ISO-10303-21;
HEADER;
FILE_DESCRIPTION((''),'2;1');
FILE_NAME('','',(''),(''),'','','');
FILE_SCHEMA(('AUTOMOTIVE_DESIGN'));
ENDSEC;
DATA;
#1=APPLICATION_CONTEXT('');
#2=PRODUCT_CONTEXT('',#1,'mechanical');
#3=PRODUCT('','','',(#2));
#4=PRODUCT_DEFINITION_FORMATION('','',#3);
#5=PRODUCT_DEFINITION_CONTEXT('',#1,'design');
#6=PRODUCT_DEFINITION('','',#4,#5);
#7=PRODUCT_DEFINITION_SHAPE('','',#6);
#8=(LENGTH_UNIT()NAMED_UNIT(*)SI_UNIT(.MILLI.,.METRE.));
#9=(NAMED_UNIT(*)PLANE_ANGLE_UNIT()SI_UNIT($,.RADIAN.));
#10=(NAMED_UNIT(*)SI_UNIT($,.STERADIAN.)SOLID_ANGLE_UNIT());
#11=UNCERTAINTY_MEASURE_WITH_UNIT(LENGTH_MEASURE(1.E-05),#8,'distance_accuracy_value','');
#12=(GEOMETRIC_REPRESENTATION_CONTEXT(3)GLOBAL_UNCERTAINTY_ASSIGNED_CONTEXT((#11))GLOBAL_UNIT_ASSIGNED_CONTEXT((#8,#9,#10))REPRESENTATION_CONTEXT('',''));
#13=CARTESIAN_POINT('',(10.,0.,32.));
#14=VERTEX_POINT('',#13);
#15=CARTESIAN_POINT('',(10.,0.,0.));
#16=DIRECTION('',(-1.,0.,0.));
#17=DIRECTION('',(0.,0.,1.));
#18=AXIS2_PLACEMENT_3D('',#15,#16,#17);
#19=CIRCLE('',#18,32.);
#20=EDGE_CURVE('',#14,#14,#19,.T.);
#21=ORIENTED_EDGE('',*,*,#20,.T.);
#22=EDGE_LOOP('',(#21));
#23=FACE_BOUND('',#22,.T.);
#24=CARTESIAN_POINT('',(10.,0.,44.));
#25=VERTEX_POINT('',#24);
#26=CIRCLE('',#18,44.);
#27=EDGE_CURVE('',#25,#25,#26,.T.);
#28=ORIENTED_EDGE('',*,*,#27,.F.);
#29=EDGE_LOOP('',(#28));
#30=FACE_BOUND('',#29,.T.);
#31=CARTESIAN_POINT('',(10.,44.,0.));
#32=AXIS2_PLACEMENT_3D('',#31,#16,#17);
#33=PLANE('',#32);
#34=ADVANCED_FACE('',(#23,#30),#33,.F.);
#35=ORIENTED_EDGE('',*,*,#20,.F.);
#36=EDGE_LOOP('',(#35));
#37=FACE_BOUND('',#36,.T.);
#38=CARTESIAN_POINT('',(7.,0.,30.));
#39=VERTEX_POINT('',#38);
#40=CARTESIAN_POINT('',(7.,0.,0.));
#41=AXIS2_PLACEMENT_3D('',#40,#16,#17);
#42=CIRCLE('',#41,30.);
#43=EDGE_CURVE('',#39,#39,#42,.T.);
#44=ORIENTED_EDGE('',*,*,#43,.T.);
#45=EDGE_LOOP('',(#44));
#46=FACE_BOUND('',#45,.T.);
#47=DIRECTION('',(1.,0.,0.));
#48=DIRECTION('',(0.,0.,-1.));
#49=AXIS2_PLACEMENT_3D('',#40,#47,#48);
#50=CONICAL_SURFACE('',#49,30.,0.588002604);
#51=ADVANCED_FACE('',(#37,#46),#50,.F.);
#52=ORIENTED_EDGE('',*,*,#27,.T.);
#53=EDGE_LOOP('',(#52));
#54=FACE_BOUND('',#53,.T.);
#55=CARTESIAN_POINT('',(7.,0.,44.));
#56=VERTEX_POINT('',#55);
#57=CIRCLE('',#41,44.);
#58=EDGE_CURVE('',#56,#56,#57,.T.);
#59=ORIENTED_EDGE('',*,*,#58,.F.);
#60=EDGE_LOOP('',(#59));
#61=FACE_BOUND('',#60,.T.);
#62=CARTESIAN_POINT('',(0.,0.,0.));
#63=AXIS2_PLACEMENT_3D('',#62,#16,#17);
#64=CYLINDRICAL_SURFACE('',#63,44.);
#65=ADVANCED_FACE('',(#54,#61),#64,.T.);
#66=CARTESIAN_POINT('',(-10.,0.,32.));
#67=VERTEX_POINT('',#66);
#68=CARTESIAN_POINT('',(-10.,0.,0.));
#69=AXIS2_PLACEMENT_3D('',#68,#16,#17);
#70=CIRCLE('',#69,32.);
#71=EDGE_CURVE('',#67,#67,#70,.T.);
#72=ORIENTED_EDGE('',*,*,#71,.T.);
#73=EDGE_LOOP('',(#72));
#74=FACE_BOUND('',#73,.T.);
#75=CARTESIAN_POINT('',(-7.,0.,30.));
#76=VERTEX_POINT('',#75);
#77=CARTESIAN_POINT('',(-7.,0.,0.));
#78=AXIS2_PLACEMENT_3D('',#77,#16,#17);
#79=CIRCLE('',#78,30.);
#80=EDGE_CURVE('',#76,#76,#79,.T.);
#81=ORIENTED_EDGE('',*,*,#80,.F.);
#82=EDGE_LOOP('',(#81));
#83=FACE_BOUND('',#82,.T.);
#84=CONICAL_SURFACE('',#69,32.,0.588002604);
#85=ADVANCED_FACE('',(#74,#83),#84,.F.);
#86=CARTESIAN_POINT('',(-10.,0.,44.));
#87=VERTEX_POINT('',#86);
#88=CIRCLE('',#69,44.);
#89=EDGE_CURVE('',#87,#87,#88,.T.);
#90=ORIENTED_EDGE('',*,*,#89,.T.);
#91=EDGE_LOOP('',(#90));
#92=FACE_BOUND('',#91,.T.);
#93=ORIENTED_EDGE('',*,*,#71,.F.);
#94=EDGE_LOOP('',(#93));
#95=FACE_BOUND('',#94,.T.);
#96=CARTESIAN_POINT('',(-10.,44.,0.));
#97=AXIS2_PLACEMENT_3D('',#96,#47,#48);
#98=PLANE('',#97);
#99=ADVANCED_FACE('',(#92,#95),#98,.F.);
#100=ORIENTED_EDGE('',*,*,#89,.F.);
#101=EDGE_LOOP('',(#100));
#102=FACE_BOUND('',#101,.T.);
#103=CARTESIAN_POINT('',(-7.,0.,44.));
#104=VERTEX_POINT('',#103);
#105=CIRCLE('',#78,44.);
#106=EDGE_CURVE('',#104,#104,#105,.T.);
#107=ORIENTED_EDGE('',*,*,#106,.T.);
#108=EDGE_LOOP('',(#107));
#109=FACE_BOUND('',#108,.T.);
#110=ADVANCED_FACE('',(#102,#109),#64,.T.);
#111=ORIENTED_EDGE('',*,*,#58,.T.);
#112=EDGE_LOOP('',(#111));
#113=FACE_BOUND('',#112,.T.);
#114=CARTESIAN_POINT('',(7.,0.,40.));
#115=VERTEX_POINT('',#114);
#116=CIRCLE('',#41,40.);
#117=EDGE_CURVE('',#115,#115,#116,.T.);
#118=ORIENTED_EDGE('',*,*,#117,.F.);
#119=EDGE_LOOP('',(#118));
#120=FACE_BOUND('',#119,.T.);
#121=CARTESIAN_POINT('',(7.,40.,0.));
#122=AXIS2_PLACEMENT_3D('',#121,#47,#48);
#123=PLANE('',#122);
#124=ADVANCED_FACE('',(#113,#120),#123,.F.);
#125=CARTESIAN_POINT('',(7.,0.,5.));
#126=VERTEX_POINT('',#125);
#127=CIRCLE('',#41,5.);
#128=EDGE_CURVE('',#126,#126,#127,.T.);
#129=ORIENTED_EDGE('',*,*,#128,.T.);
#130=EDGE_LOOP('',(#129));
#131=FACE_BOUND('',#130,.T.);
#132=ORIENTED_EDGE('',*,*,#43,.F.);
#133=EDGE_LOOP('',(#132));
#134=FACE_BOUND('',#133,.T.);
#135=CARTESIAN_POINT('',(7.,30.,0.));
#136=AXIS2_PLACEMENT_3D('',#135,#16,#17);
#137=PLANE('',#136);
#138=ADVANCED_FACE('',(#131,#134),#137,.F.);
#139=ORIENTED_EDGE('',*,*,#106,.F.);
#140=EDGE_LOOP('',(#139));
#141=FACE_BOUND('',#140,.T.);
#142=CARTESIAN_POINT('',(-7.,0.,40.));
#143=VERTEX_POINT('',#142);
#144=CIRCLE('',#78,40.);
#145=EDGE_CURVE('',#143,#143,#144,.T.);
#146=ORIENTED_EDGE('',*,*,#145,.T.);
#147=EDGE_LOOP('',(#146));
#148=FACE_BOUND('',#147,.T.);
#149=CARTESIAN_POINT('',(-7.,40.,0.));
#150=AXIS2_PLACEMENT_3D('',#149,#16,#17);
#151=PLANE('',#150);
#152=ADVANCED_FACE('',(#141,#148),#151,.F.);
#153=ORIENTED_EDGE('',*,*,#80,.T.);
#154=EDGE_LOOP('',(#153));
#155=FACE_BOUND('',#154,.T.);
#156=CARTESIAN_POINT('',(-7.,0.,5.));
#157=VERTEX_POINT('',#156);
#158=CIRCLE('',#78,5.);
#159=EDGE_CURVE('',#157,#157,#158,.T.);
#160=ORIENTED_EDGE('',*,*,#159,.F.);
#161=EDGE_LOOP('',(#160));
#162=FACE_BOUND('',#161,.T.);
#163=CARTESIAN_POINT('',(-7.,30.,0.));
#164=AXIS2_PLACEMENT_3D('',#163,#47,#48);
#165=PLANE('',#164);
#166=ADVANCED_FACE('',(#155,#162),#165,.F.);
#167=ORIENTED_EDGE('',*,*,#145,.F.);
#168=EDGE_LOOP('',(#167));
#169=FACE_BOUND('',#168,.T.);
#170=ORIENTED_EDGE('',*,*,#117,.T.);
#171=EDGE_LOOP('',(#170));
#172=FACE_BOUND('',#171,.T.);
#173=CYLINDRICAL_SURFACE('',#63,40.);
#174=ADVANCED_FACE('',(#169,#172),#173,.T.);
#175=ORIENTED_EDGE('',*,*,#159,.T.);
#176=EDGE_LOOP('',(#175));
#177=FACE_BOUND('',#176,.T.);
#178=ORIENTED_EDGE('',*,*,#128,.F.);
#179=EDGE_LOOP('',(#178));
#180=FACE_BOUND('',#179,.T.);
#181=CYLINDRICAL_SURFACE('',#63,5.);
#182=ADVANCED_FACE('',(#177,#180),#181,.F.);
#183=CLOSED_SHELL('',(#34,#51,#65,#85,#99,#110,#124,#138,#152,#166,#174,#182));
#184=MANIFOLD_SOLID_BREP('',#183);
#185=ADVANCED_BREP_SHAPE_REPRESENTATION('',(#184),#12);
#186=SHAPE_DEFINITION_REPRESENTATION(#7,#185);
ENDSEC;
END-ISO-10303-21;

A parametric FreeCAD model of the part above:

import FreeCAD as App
import Part
import Sketcher
Q = App.Units.Quantity


def add_polygon(sketch, points):
    """Adds a closed chain of lines whose ends are joined by coincident constraints."""
    first, n = sketch.GeometryCount, len(points)
    for a, b in zip(points, points[1:] + points[:1]):
        sketch.addGeometry(Part.LineSegment(App.Vector(*a, 0), App.Vector(*b, 0)), False)
    for i in range(n):
        sketch.addConstraint(Sketcher.Constraint("Coincident", first + i, 2, first + (i + 1) % n, 1))

doc = App.newDocument("Part")
params = doc.addObject("Spreadsheet::Sheet", "Params")
for row, (alias, value) in enumerate([
    ("sketch1_width", "14 mm"),
    ("sketch1_width2", "3 mm"),
    ("sketch1_height", "4 mm"),
    ("sketch1_height2", "12 mm"),
    ("sketch1_height3", "25 mm"),
    ("revolution_angle", "360 deg"),
], start=1):
    params.set(f"A{row}", alias)
    params.set(f"B{row}", "=" + value)
    params.setAlias(f"B{row}", alias)

body = doc.addObject("PartDesign::Body", "Body")

sketch1 = body.newObject("Sketcher::SketchObject", "Sketch")
sketch1.AttachmentSupport = (doc.getObject("XY_Plane"), [""])
sketch1.MapMode = "FlatFace"
add_polygon(sketch1, [(7, 40), (-7, 40), (-7, 44), (-10, 44), (-10, 32), (-7, 30), (-7, 5), (7, 5), (7, 30), (10, 32), (10, 44), (7, 44)])
sketch1.addConstraint(Sketcher.Constraint("Horizontal", 0))
sketch1.addConstraint(Sketcher.Constraint("Vertical", 1))
sketch1.addConstraint(Sketcher.Constraint("Horizontal", 2))
sketch1.addConstraint(Sketcher.Constraint("Vertical", 3))
sketch1.addConstraint(Sketcher.Constraint("Vertical", 5))
sketch1.addConstraint(Sketcher.Constraint("Horizontal", 6))
sketch1.addConstraint(Sketcher.Constraint("Vertical", 7))
sketch1.addConstraint(Sketcher.Constraint("Vertical", 9))
sketch1.addConstraint(Sketcher.Constraint("Horizontal", 10))
sketch1.addConstraint(Sketcher.Constraint("Vertical", 11))
sketch1.addConstraint(Sketcher.Constraint("Symmetric", 4, 2, 7, 2, -2))
sketch1.addConstraint(Sketcher.Constraint("Symmetric", 3, 2, 8, 2, -2))
sketch1.addConstraint(Sketcher.Constraint("Symmetric", 1, 2, 10, 2, -2))
sketch1.addConstraint(Sketcher.Constraint("Vertical", 1, 2, 4, 2))
sketch1.addConstraint(Sketcher.Constraint("DistanceX", 0, 2, 0, 1, Q("14 mm")))
sketch1.addConstraint(Sketcher.Constraint("DistanceX", 2, 2, 2, 1, Q("3 mm")))
sketch1.addConstraint(Sketcher.Constraint("DistanceY", 1, 1, 1, 2, Q("4 mm")))
sketch1.addConstraint(Sketcher.Constraint("DistanceY", 3, 2, 3, 1, Q("12 mm")))
sketch1.addConstraint(Sketcher.Constraint("DistanceY", 5, 2, 5, 1, Q("25 mm")))
sketch1.addConstraint(Sketcher.Constraint("DistanceY", -1, 1, 0, 2, Q("40 mm")))
sketch1.addConstraint(Sketcher.Constraint("DistanceY", -1, 1, 4, 2, Q("30 mm")))
sketch1.setExpression("Constraints[26]", "Params.sketch1_width")
sketch1.setExpression("Constraints[27]", "Params.sketch1_width2")
sketch1.setExpression("Constraints[28]", "Params.sketch1_height")
sketch1.setExpression("Constraints[29]", "Params.sketch1_height2")
sketch1.setExpression("Constraints[30]", "Params.sketch1_height3")
revolution = body.newObject("PartDesign::Revolution", "Revolution")
revolution.Profile = sketch1
revolution.ReferenceAxis = (sketch1, ["H_Axis"])
revolution.setExpression("Angle", "Params.revolution_angle")

doc.recompute()
